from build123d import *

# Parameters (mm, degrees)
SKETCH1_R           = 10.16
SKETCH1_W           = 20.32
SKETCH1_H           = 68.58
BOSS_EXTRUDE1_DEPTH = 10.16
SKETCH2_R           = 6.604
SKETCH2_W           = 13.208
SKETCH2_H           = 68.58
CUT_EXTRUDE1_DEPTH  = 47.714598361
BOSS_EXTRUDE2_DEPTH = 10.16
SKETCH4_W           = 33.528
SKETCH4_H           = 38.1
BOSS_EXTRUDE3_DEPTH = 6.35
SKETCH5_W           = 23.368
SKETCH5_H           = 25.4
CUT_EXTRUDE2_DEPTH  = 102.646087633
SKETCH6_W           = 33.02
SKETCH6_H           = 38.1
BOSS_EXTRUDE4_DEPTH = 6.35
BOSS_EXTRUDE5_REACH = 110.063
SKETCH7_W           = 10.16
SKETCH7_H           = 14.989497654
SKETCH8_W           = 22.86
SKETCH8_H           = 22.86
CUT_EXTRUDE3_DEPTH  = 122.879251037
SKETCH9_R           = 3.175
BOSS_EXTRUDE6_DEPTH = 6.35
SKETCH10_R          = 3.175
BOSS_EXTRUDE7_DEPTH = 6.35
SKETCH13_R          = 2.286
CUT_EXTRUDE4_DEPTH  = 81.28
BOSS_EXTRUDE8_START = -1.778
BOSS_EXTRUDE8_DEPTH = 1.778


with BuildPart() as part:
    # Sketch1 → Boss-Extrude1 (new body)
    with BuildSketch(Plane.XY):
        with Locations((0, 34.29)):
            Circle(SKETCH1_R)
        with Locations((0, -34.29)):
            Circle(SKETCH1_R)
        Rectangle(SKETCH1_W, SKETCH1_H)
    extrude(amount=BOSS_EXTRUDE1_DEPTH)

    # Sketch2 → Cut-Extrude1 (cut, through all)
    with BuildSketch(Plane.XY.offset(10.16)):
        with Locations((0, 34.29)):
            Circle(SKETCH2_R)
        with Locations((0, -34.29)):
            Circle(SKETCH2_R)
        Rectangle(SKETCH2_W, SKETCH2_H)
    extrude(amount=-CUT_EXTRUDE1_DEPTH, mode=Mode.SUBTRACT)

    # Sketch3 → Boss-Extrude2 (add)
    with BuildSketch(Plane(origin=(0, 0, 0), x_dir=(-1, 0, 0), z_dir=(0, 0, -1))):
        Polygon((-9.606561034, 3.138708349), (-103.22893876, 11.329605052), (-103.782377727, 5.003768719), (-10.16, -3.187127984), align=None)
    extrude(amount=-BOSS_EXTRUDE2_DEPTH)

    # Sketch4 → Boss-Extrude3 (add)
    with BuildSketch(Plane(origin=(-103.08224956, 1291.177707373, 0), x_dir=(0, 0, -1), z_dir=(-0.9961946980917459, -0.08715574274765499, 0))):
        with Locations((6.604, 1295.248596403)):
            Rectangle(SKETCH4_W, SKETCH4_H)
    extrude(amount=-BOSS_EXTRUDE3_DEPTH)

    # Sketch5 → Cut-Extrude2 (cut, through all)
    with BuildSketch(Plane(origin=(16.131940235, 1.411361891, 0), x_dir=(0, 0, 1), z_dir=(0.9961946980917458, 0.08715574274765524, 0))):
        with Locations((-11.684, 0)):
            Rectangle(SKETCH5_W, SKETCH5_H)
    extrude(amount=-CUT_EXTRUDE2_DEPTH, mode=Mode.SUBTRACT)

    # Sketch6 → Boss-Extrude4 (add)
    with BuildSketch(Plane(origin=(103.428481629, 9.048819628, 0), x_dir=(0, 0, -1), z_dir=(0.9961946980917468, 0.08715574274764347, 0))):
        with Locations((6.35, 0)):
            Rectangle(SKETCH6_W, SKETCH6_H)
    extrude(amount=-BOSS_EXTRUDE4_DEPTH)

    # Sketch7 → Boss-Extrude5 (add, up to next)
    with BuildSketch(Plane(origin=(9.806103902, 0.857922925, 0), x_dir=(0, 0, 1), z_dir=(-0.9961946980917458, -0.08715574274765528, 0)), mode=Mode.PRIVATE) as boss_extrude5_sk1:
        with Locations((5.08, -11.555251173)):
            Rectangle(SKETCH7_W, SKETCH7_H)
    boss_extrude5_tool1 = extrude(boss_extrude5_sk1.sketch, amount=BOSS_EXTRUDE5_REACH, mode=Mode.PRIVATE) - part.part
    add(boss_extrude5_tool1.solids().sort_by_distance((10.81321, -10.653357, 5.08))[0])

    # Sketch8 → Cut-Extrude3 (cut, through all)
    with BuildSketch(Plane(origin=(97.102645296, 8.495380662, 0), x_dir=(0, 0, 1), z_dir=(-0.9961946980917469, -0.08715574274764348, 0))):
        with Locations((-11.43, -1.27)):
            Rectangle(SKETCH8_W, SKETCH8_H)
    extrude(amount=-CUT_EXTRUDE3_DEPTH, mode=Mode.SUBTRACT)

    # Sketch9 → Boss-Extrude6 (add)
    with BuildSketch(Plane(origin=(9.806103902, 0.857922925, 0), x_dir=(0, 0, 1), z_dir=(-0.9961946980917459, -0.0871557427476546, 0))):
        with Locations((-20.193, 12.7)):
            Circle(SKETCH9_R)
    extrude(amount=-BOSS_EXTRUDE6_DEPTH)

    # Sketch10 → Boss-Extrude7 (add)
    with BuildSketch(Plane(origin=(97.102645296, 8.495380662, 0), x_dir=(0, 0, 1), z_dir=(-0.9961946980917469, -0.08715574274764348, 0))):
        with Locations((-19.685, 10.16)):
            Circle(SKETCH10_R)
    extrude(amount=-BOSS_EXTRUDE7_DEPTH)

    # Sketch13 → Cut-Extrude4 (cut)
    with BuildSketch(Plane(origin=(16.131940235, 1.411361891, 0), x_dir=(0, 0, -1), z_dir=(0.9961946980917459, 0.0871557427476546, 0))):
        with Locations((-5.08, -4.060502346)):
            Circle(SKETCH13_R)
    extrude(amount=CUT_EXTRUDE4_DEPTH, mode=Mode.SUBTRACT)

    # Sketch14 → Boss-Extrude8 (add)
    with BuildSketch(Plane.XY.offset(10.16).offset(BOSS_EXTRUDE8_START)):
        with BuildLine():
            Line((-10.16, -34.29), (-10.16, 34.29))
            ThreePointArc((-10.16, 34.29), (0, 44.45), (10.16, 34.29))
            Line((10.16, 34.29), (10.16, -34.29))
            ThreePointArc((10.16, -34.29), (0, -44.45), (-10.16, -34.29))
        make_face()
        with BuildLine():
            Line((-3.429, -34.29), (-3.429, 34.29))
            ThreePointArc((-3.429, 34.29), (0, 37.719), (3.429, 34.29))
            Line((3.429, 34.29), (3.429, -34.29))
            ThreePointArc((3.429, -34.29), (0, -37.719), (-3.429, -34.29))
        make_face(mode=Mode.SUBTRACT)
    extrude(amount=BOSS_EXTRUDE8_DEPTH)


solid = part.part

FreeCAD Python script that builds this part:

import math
import FreeCAD as App
import Part
import Sketcher
Q = App.Units.Quantity

doc = App.newDocument("Part")
body = doc.addObject("PartDesign::Body", "Body")

# Sketch on XY plane
sketch1 = doc.addObject("Sketcher::SketchObject", "Sketch")
body.addObject(sketch1)
sketch1.AttachmentSupport = (doc.XY_Plane, [""])
sketch1.MapMode = "FlatFace"
sketch1.addGeometry([
    Part.ArcOfCircle(Part.Circle(App.Vector(0, 34, 0), App.Vector(0, 0, 1), 10), math.radians(0), math.radians(180)),
    Part.LineSegment(App.Vector(-10, 34, 0), App.Vector(-10, -34, 0)),
    Part.ArcOfCircle(Part.Circle(App.Vector(0, -34, 0), App.Vector(0, 0, 1), 10), math.radians(180), math.radians(360)),
    Part.LineSegment(App.Vector(10, -34, 0), App.Vector(10, 34, 0)),
], False)
sketch1.addConstraint([
    Sketcher.Constraint("Tangent", 0, 2, 1, 1),
    Sketcher.Constraint("Tangent", 1, 2, 2, 1),
    Sketcher.Constraint("Tangent", 2, 2, 3, 1),
    Sketcher.Constraint("Tangent", 3, 2, 0, 1),
    Sketcher.Constraint("Vertical", 1),
    Sketcher.Constraint("Vertical", 3),
    Sketcher.Constraint("Symmetric", 0, 3, 2, 3, -1, 1),
    Sketcher.Constraint("Radius", 0, Q("0.4 in")),
    Sketcher.Constraint("DistanceY", 1, 2, 1, 1, Q("2.7 in")),
])
pad1 = doc.addObject("PartDesign::Pad", "Pad")
body.addObject(pad1)
pad1.Profile = sketch1
pad1.Length = Q("0.4 in")

# Sketch on XY plane
sketch2 = doc.addObject("Sketcher::SketchObject", "Sketch001")
body.addObject(sketch2)
sketch2.AttachmentSupport = (doc.XY_Plane, [""])
sketch2.MapMode = "FlatFace"
sketch2.AttachmentOffset = App.Placement(App.Vector(0, 0, 0.4 * 25.4), App.Rotation())
sketch2.addGeometry([
    Part.ArcOfCircle(Part.Circle(App.Vector(0, 34, 0), App.Vector(0, 0, 1), 7), math.radians(0), math.radians(180)),
    Part.LineSegment(App.Vector(-7, 34, 0), App.Vector(-7, -34, 0)),
    Part.ArcOfCircle(Part.Circle(App.Vector(0, -34, 0), App.Vector(0, 0, 1), 7), math.radians(180), math.radians(360)),
    Part.LineSegment(App.Vector(7, -34, 0), App.Vector(7, 34, 0)),
], False)
sketch2.addConstraint([
    Sketcher.Constraint("Tangent", 0, 2, 1, 1),
    Sketcher.Constraint("Tangent", 1, 2, 2, 1),
    Sketcher.Constraint("Tangent", 2, 2, 3, 1),
    Sketcher.Constraint("Tangent", 3, 2, 0, 1),
    Sketcher.Constraint("Vertical", 1),
    Sketcher.Constraint("Vertical", 3),
    Sketcher.Constraint("Symmetric", 0, 3, 2, 3, -1, 1),
    Sketcher.Constraint("Radius", 0, Q("0.26 in")),
    Sketcher.Constraint("DistanceY", 1, 2, 1, 1, Q("2.7 in")),
])
pocket1 = doc.addObject("PartDesign::Pocket", "Pocket")
body.addObject(pocket1)
pocket1.Profile = sketch2
pocket1.Type = "ThroughAll"

# Sketch on XY plane
sketch3 = doc.addObject("Sketcher::SketchObject", "Sketch002")
body.addObject(sketch3)
sketch3.AttachmentSupport = (doc.XY_Plane, [""])
sketch3.MapMode = "FlatFace"
sketch3.addGeometry([
    Part.LineSegment(App.Vector(10, 3, 0), App.Vector(103, 11, 0)),
    Part.LineSegment(App.Vector(103, 11, 0), App.Vector(104, 5, 0)),
    Part.LineSegment(App.Vector(104, 5, 0), App.Vector(10, -3, 0)),
    Part.LineSegment(App.Vector(10, -3, 0), App.Vector(10, 3, 0)),
], False)
sketch3.addConstraint([
    Sketcher.Constraint("Coincident", 0, 2, 1, 1),
    Sketcher.Constraint("Coincident", 1, 2, 2, 1),
    Sketcher.Constraint("Coincident", 2, 2, 3, 1),
    Sketcher.Constraint("Coincident", 3, 2, 0, 1),
    Sketcher.Constraint("Perpendicular", 0, 1),
    Sketcher.Constraint("Perpendicular", 1, 2),
    Sketcher.Constraint("Perpendicular", 2, 3),
    Sketcher.Constraint("Angle", 0, Q("5 deg")),
    Sketcher.Constraint("Distance", 0, Q("3.7 in")),
    Sketcher.Constraint("DistanceX", -1, 1, 2, 2, Q("0.4 in")),
    Sketcher.Constraint("Distance", 1, Q("0.25 in")),
    Sketcher.Constraint("DistanceY", -1, 1, 1, 2, Q("5.003769 mm")),
])
pad2 = doc.addObject("PartDesign::Pad", "Pad001")
body.addObject(pad2)
pad2.Profile = sketch3
pad2.Length = Q("0.4 in")

# Sketch on an angled plane
sketch4 = doc.addObject("Sketcher::SketchObject", "Sketch003")
body.addObject(sketch4)
sketch4.Placement = App.Placement(App.Vector(-103.08225, 1291.177707, 0), App.Rotation(App.Vector(0, 0, -1), App.Vector(0.087155743, -0.996194698, 0), App.Vector(-0.996194698, -0.087155743, 0), "ZXY"))
sketch4.addGeometry([
    Part.LineSegment(App.Vector(-10, 1314, 0), App.Vector(-10, 1276, 0)),
    Part.LineSegment(App.Vector(-10, 1276, 0), App.Vector(23, 1276, 0)),
    Part.LineSegment(App.Vector(23, 1276, 0), App.Vector(23, 1314, 0)),
    Part.LineSegment(App.Vector(23, 1314, 0), App.Vector(-10, 1314, 0)),
], False)
sketch4.addConstraint([
    Sketcher.Constraint("Coincident", 0, 2, 1, 1),
    Sketcher.Constraint("Coincident", 1, 2, 2, 1),
    Sketcher.Constraint("Coincident", 2, 2, 3, 1),
    Sketcher.Constraint("Coincident", 3, 2, 0, 1),
    Sketcher.Constraint("Vertical", 0),
    Sketcher.Constraint("Horizontal", 1),
    Sketcher.Constraint("Vertical", 2),
    Sketcher.Constraint("Horizontal", 3),
    Sketcher.Constraint("DistanceY", 0, 2, 0, 1, Q("1.5 in")),
    Sketcher.Constraint("DistanceX", 1, 1, 1, 2, Q("1.32 in")),
    Sketcher.Constraint("DistanceX", 0, 2, -1, 1, Q("0.4 in")),
    Sketcher.Constraint("DistanceY", -1, 1, 0, 2, Q("1276.198596 mm")),
])
pad3 = doc.addObject("PartDesign::Pad", "Pad002")
body.addObject(pad3)
pad3.Profile = sketch4
pad3.Length = Q("0.25 in")
pad3.Reversed = True

# Sketch on an angled plane
sketch5 = doc.addObject("Sketcher::SketchObject", "Sketch004")
body.addObject(sketch5)
sketch5.Placement = App.Placement(App.Vector(16.13194, 1.411362, 0), App.Rotation(App.Vector(0, 0, 1), App.Vector(0.087155743, -0.996194698, 0), App.Vector(0.996194698, 0.087155743, 0), "ZXY"))
sketch5.addGeometry([
    Part.LineSegment(App.Vector(-23, 13, 0), App.Vector(-23, -13, 0)),
    Part.LineSegment(App.Vector(-23, -13, 0), App.Vector(0, -13, 0)),
    Part.LineSegment(App.Vector(0, -13, 0), App.Vector(0, 13, 0)),
    Part.LineSegment(App.Vector(0, 13, 0), App.Vector(-23, 13, 0)),
], False)
sketch5.addConstraint([
    Sketcher.Constraint("Coincident", 0, 2, 1, 1),
    Sketcher.Constraint("Coincident", 1, 2, 2, 1),
    Sketcher.Constraint("Coincident", 2, 2, 3, 1),
    Sketcher.Constraint("Coincident", 3, 2, 0, 1),
    Sketcher.Constraint("Vertical", 0),
    Sketcher.Constraint("Horizontal", 1),
    Sketcher.Constraint("Vertical", 2),
    Sketcher.Constraint("Horizontal", 3),
    Sketcher.Constraint("Symmetric", 1, 2, 2, 2, -1, 1),
    Sketcher.Constraint("DistanceY", 0, 2, 0, 1, Q("1 in")),
    Sketcher.Constraint("DistanceX", 1, 1, 1, 2, Q("0.92 in")),
])
pocket2 = doc.addObject("PartDesign::Pocket", "Pocket001")
body.addObject(pocket2)
pocket2.Profile = sketch5
pocket2.Type = "ThroughAll"

# Sketch on an angled plane
sketch6 = doc.addObject("Sketcher::SketchObject", "Sketch005")
body.addObject(sketch6)
sketch6.Placement = App.Placement(App.Vector(103.428482, 9.04882, 0), App.Rotation(App.Vector(0, 0, -1), App.Vector(-0.087155743, 0.996194698, 0), App.Vector(0.996194698, 0.087155743, 0), "ZXY"))
sketch6.addGeometry([
    Part.LineSegment(App.Vector(-10, 19, 0), App.Vector(-10, -19, 0)),
    Part.LineSegment(App.Vector(-10, -19, 0), App.Vector(23, -19, 0)),
    Part.LineSegment(App.Vector(23, -19, 0), App.Vector(23, 19, 0)),
    Part.LineSegment(App.Vector(23, 19, 0), App.Vector(-10, 19, 0)),
], False)
sketch6.addConstraint([
    Sketcher.Constraint("Coincident", 0, 2, 1, 1),
    Sketcher.Constraint("Coincident", 1, 2, 2, 1),
    Sketcher.Constraint("Coincident", 2, 2, 3, 1),
    Sketcher.Constraint("Coincident", 3, 2, 0, 1),
    Sketcher.Constraint("Vertical", 0),
    Sketcher.Constraint("Horizontal", 1),
    Sketcher.Constraint("Vertical", 2),
    Sketcher.Constraint("Horizontal", 3),
    Sketcher.Constraint("DistanceX", 1, 1, 1, 2, Q("1.3 in")),
    Sketcher.Constraint("DistanceY", 0, 2, 0, 1, Q("1.5 in")),
    Sketcher.Constraint("DistanceX", 0, 2, -1, 1, Q("0.4 in")),
    Sketcher.Constraint("DistanceY", 0, 2, -1, 1, Q("0.75 in")),
])
pad4 = doc.addObject("PartDesign::Pad", "Pad003")
body.addObject(pad4)
pad4.Profile = sketch6
pad4.Length = Q("0.25 in")
pad4.Reversed = True

# Sketch on an angled plane
sketch7 = doc.addObject("Sketcher::SketchObject", "Sketch006")
body.addObject(sketch7)
sketch7.Placement = App.Placement(App.Vector(9.806104, 0.857923, 0), App.Rotation(App.Vector(0, 0, 1), App.Vector(-0.087155743, 0.996194698, 0), App.Vector(-0.996194698, -0.087155743, 0), "ZXY"))
sketch7.addGeometry([
    Part.LineSegment(App.Vector(0, -4, 0), App.Vector(0, -19, 0)),
    Part.LineSegment(App.Vector(0, -19, 0), App.Vector(10, -19, 0)),
    Part.LineSegment(App.Vector(10, -19, 0), App.Vector(10, -4, 0)),
    Part.LineSegment(App.Vector(10, -4, 0), App.Vector(0, -4, 0)),
], False)
sketch7.addConstraint([
    Sketcher.Constraint("Coincident", 0, 2, 1, 1),
    Sketcher.Constraint("Coincident", 1, 2, 2, 1),
    Sketcher.Constraint("Coincident", 2, 2, 3, 1),
    Sketcher.Constraint("Coincident", 3, 2, 0, 1),
    Sketcher.Constraint("Vertical", 0),
    Sketcher.Constraint("Horizontal", 1),
    Sketcher.Constraint("Vertical", 2),
    Sketcher.Constraint("Horizontal", 3),
    Sketcher.Constraint("PointOnObject", 0, 2, -2),
    Sketcher.Constraint("DistanceX", 1, 1, 1, 2, Q("0.4 in")),
    Sketcher.Constraint("DistanceY", 0, 2, -1, 1, Q("0.75 in")),
    Sketcher.Constraint("DistanceY", 0, 2, 0, 1, Q("14.989498 mm")),
])
pad5 = doc.addObject("PartDesign::Pad", "Pad004")
body.addObject(pad5)
pad5.Profile = sketch7
pad5.Length = 1.311411

# Sketch on an angled plane
sketch8 = doc.addObject("Sketcher::SketchObject", "Sketch007")
body.addObject(sketch8)
sketch8.Placement = App.Placement(App.Vector(97.102645, 8.495381, 0), App.Rotation(App.Vector(0, 0, 1), App.Vector(-0.087155743, 0.996194698, 0), App.Vector(-0.996194698, -0.087155743, 0), "ZXY"))
sketch8.addGeometry([
    Part.LineSegment(App.Vector(-23, 10, 0), App.Vector(-23, -13, 0)),
    Part.LineSegment(App.Vector(-23, -13, 0), App.Vector(0, -13, 0)),
    Part.LineSegment(App.Vector(0, -13, 0), App.Vector(0, 10, 0)),
    Part.LineSegment(App.Vector(0, 10, 0), App.Vector(-23, 10, 0)),
], False)
sketch8.addConstraint([
    Sketcher.Constraint("Coincident", 0, 2, 1, 1),
    Sketcher.Constraint("Coincident", 1, 2, 2, 1),
    Sketcher.Constraint("Coincident", 2, 2, 3, 1),
    Sketcher.Constraint("Coincident", 3, 2, 0, 1),
    Sketcher.Constraint("Vertical", 0),
    Sketcher.Constraint("Horizontal", 1),
    Sketcher.Constraint("Vertical", 2),
    Sketcher.Constraint("Horizontal", 3),
    Sketcher.Constraint("PointOnObject", 1, 2, -2),
    Sketcher.Constraint("Equal", 3, 0),
    Sketcher.Constraint("DistanceX", 1, 1, 1, 2, Q("0.9 in")),
    Sketcher.Constraint("DistanceY", 0, 2, -1, 1, Q("0.5 in")),
])
pocket3 = doc.addObject("PartDesign::Pocket", "Pocket002")
body.addObject(pocket3)
pocket3.Profile = sketch8
pocket3.Type = "ThroughAll"

# Sketch on an angled plane
sketch9 = doc.addObject("Sketcher::SketchObject", "Sketch008")
body.addObject(sketch9)
sketch9.Placement = App.Placement(App.Vector(9.806104, 0.857923, 0), App.Rotation(App.Vector(0, 0, 1), App.Vector(-0.087155743, 0.996194698, 0), App.Vector(-0.996194698, -0.087155743, 0), "ZXY"))
sketch9.addGeometry(Part.Circle(App.Vector(-20.2, 12.7, 0), App.Vector(0, 0, 1), 3.2), False)
sketch9.addConstraint([
    Sketcher.Constraint("Diameter", 0, Q("0.25 in")),
    Sketcher.Constraint("DistanceY", -1, 1, 0, 3, Q("0.5 in")),
    Sketcher.Constraint("DistanceX", 0, 3, -1, 1, Q("0.795 in")),
])
pad6 = doc.addObject("PartDesign::Pad", "Pad005")
body.addObject(pad6)
pad6.Profile = sketch9
pad6.Length = Q("0.25 in")
pad6.Reversed = True

# Sketch on an angled plane
sketch10 = doc.addObject("Sketcher::SketchObject", "Sketch009")
body.addObject(sketch10)
sketch10.Placement = App.Placement(App.Vector(97.102645, 8.495381, 0), App.Rotation(App.Vector(0, 0, 1), App.Vector(-0.087155743, 0.996194698, 0), App.Vector(-0.996194698, -0.087155743, 0), "ZXY"))
sketch10.addGeometry(Part.Circle(App.Vector(-19.7, 10.2, 0), App.Vector(0, 0, 1), 3.2), False)
sketch10.addConstraint([
    Sketcher.Constraint("Diameter", 0, Q("0.25 in")),
    Sketcher.Constraint("DistanceY", -1, 1, 0, 3, Q("0.4 in")),
    Sketcher.Constraint("DistanceX", 0, 3, -1, 1, Q("0.775 in")),
])
pad7 = doc.addObject("PartDesign::Pad", "Pad006")
body.addObject(pad7)
pad7.Profile = sketch10
pad7.Length = Q("0.25 in")
pad7.Reversed = True

# Sketch on an angled plane
sketch11 = doc.addObject("Sketcher::SketchObject", "Sketch010")
body.addObject(sketch11)
sketch11.Placement = App.Placement(App.Vector(16.13194, 1.411362, 0), App.Rotation(App.Vector(0, 0, -1), App.Vector(-0.087155743, 0.996194698, 0), App.Vector(0.996194698, 0.087155743, 0), "ZXY"))
sketch11.addGeometry(Part.Circle(App.Vector(-5.1, -4.1, 0), App.Vector(0, 0, 1), 2.3), False)
sketch11.addConstraint([
    Sketcher.Constraint("Diameter", 0, Q("0.18 in")),
    Sketcher.Constraint("DistanceX", 0, 3, -1, 1, Q("0.2 in")),
    Sketcher.Constraint("DistanceY", 0, 3, -1, 1, Q("4.060502 mm")),
])
pocket4 = doc.addObject("PartDesign::Pocket", "Pocket003")
body.addObject(pocket4)
pocket4.Profile = sketch11
pocket4.Length = Q("3.2 in")
pocket4.Reversed = True

# Sketch on XY plane
sketch12 = doc.addObject("Sketcher::SketchObject", "Sketch011")
body.addObject(sketch12)
sketch12.AttachmentSupport = (doc.XY_Plane, [""])
sketch12.MapMode = "FlatFace"
sketch12.AttachmentOffset = App.Placement(App.Vector(0, 0, 0.33 * 25.4), App.Rotation())
sketch12.addGeometry([
    Part.LineSegment(App.Vector(-10.2, 34.3, 0), App.Vector(-10.2, -34.3, 0)),  # 0
    Part.ArcOfCircle(Part.Circle(App.Vector(0, -34.3, 0), App.Vector(0, 0, 1), 10.2), math.radians(180), math.radians(360)),  # 1
    Part.LineSegment(App.Vector(10.2, -34.3, 0), App.Vector(10.2, 34.3, 0)),  # 2
    Part.ArcOfCircle(Part.Circle(App.Vector(0, 34.3, 0), App.Vector(0, 0, 1), 10.2), math.radians(0), math.radians(180)),  # 3
    Part.LineSegment(App.Vector(-3.4, -34.3, 0), App.Vector(-3.4, 34.3, 0)),  # 4
    Part.ArcOfCircle(Part.Circle(App.Vector(0, 34.3, 0), App.Vector(0, 0, 1), 3.4), math.radians(0), math.radians(180)),  # 5
    Part.LineSegment(App.Vector(3.4, 34.3, 0), App.Vector(3.4, -34.3, 0)),  # 6
    Part.ArcOfCircle(Part.Circle(App.Vector(0, -34.3, 0), App.Vector(0, 0, 1), 3.4), math.radians(180), math.radians(360)),  # 7
], False)
sketch12.addConstraint([
    Sketcher.Constraint("Tangent", 0, 2, 1, 1),
    Sketcher.Constraint("Tangent", 1, 2, 2, 1),
    Sketcher.Constraint("Tangent", 2, 2, 3, 1),
    Sketcher.Constraint("Tangent", 3, 2, 0, 1),
    Sketcher.Constraint("Tangent", 4, 2, 5, 2),
    Sketcher.Constraint("Tangent", 5, 1, 6, 1),
    Sketcher.Constraint("Tangent", 6, 2, 7, 2),
    Sketcher.Constraint("Tangent", 7, 1, 4, 1),
    Sketcher.Constraint("Vertical", 0),
    Sketcher.Constraint("Vertical", 2),
    Sketcher.Constraint("Vertical", 4),
    Sketcher.Constraint("Vertical", 6),
    Sketcher.Constraint("Coincident", 5, 3, 3, 3),
    Sketcher.Constraint("Symmetric", 1, 3, 3, 3, -1, 1),
    Sketcher.Constraint("Horizontal", 7, 3, 0, 2),
    Sketcher.Constraint("Radius", 1, Q("0.4 in")),
    Sketcher.Constraint("DistanceY", 0, 2, 0, 1, Q("2.7 in")),
    Sketcher.Constraint("Radius", 5, Q("0.135 in")),
])
pad8 = doc.addObject("PartDesign::Pad", "Pad007")
body.addObject(pad8)
pad8.Profile = sketch12
pad8.Length = Q("0.07 in")

doc.recompute()
